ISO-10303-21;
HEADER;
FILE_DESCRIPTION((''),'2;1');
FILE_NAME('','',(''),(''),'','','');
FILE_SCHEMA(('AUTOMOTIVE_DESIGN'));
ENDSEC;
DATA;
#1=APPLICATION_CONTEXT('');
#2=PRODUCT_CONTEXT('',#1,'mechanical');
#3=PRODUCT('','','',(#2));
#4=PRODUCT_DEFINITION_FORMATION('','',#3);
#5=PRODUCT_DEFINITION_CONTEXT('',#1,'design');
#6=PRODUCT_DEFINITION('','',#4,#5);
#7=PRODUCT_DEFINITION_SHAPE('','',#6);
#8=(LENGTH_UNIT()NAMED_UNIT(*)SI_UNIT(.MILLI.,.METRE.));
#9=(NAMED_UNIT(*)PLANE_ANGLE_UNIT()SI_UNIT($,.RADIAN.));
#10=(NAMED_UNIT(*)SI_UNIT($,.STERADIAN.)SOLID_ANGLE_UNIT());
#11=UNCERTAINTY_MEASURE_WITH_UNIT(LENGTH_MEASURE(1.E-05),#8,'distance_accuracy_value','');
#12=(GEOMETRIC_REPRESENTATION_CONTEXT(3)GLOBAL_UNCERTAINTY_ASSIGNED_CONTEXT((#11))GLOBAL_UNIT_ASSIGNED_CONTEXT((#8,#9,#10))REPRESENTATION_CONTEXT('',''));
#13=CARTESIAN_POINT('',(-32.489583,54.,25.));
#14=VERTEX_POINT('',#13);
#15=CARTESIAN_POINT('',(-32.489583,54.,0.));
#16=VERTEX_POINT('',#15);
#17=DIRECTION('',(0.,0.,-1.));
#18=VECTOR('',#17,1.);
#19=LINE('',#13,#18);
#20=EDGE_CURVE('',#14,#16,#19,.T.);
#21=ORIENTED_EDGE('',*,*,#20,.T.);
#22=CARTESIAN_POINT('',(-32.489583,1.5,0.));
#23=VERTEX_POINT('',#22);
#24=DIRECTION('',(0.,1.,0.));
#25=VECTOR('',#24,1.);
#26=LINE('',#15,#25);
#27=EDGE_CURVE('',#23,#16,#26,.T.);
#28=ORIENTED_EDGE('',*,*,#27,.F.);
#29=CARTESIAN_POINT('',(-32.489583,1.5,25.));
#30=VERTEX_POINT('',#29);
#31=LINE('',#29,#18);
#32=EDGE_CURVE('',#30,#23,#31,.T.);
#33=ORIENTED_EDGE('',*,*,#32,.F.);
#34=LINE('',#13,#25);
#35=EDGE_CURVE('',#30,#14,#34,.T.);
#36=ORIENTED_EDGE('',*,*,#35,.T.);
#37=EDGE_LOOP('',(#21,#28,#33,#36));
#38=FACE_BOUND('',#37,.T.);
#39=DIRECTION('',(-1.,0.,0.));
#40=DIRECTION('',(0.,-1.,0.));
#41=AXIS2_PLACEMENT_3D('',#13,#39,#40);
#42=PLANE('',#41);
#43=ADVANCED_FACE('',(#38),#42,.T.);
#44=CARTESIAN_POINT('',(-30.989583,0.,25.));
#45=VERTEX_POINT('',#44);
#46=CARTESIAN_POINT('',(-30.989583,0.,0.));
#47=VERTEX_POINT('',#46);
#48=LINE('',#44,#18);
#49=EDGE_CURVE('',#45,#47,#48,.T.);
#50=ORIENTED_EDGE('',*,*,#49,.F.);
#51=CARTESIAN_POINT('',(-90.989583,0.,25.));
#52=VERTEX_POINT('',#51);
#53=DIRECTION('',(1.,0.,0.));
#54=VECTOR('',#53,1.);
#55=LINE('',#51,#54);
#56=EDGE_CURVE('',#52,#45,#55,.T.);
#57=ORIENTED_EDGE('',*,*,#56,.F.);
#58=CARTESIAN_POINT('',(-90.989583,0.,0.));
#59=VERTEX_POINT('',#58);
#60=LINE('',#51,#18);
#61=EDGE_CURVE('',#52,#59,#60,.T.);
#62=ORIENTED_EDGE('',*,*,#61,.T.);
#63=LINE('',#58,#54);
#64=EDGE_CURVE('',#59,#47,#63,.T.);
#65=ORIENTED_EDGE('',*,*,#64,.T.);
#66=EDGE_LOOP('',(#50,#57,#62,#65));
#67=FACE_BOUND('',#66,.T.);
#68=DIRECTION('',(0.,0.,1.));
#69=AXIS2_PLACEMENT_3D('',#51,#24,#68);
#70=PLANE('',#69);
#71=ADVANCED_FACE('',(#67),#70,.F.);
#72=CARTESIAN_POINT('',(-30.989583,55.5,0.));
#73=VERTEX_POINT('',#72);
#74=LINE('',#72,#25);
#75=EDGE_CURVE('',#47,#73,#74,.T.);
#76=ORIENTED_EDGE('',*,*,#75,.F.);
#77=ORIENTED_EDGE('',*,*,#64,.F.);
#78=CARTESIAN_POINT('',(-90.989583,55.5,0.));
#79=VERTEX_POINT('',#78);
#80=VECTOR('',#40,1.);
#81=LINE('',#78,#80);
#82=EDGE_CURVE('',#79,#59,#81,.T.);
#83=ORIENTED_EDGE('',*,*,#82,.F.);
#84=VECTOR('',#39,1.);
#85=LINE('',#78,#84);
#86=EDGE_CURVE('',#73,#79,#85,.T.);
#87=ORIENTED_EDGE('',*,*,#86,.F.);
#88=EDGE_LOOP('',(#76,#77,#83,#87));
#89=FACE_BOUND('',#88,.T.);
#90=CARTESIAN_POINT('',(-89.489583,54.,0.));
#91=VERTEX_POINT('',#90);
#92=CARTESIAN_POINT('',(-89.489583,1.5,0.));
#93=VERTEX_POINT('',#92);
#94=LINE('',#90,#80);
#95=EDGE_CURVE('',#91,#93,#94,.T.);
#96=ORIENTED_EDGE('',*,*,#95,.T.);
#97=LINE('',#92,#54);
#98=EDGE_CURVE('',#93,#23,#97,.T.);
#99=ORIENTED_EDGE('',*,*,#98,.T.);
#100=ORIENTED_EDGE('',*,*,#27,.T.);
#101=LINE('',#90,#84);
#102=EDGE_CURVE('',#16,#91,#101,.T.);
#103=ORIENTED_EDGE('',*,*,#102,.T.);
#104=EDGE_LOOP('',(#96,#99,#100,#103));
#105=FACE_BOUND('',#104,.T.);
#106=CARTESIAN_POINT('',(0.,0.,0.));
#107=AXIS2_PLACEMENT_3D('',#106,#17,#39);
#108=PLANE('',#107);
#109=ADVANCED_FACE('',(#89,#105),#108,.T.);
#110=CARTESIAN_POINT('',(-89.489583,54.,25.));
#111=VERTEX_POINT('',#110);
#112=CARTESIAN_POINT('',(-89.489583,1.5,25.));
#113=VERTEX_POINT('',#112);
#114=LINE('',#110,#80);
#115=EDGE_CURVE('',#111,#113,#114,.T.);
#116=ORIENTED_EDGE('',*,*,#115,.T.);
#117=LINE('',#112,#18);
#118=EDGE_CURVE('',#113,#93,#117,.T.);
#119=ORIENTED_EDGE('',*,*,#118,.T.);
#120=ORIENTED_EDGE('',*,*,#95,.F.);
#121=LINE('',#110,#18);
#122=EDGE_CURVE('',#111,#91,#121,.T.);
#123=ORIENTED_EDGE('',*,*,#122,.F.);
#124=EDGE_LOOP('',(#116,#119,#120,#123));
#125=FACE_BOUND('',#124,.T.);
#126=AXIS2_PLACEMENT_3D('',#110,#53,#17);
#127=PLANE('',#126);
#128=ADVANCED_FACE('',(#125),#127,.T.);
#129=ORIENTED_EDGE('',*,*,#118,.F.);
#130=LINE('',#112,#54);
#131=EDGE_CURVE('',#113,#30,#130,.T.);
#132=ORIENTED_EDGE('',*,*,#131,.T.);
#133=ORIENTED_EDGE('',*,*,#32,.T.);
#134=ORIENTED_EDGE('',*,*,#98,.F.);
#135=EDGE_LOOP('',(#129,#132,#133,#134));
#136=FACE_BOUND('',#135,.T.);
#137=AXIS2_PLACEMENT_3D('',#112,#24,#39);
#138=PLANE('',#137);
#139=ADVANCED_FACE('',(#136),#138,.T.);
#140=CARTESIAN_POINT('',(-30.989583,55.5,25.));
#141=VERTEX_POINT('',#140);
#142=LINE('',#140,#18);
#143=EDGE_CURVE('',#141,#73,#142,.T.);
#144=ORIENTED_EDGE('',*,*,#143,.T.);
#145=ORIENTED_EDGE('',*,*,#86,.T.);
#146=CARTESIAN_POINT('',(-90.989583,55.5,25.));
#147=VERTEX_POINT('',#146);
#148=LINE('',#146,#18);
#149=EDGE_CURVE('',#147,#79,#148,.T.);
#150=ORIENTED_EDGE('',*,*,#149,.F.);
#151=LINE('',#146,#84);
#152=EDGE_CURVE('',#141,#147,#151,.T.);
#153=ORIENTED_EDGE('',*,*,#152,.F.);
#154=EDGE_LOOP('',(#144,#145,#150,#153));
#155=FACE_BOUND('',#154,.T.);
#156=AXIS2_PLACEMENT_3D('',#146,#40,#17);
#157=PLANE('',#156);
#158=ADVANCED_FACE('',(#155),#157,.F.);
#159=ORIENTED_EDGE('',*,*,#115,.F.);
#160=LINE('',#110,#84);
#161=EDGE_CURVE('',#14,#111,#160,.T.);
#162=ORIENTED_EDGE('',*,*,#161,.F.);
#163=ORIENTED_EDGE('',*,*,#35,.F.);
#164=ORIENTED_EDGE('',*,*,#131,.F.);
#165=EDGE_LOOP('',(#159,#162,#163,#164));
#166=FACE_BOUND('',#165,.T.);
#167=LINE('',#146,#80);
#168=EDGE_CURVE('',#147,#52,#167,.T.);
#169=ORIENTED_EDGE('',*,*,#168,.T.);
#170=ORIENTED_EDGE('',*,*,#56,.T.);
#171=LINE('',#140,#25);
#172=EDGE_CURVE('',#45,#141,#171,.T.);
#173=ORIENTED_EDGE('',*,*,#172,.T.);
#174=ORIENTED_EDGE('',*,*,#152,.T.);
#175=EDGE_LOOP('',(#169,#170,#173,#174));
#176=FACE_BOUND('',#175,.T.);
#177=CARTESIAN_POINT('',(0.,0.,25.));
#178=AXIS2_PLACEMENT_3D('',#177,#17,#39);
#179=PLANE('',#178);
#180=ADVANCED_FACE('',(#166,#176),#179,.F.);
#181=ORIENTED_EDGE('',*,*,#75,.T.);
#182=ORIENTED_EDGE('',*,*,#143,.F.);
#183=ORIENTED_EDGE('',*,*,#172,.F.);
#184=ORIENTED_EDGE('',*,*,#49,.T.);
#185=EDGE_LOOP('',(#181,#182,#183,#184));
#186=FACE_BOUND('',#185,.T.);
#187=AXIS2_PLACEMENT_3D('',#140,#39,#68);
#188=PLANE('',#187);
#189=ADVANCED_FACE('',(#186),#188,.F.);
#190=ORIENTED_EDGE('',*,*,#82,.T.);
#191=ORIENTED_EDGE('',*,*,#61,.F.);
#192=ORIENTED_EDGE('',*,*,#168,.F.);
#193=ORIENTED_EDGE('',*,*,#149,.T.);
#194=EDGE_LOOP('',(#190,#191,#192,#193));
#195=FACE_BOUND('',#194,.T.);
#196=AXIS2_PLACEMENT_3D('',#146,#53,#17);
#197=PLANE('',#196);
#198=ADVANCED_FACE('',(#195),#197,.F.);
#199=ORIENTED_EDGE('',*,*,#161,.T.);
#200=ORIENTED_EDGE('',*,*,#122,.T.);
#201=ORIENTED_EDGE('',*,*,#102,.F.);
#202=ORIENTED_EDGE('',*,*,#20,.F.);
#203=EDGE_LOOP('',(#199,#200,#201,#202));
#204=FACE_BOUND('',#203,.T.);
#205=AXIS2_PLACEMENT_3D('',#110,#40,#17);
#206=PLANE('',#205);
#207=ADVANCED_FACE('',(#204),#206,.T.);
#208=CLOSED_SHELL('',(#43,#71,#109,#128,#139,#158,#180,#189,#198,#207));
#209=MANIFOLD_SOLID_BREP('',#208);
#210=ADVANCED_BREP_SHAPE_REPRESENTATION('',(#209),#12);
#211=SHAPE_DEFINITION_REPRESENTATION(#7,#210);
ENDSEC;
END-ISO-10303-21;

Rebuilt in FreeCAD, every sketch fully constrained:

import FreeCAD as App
import Part
import Sketcher

doc = App.newDocument("Part")
body = doc.addObject("PartDesign::Body", "Body")

# Sketch on XY plane
sketch1 = doc.addObject("Sketcher::SketchObject", "Sketch")
body.addObject(sketch1)
sketch1.AttachmentSupport = (doc.XY_Plane, [""])
sketch1.MapMode = "FlatFace"
sketch1.addGeometry(Part.LineSegment(App.Vector(-91, 56, 0), App.Vector(-91, 0, 0)), False)
sketch1.addGeometry(Part.LineSegment(App.Vector(-91, 0, 0), App.Vector(-31, 0, 0)), False)
sketch1.addGeometry(Part.LineSegment(App.Vector(-31, 0, 0), App.Vector(-31, 56, 0)), False)
sketch1.addGeometry(Part.LineSegment(App.Vector(-31, 56, 0), App.Vector(-91, 56, 0)), False)
sketch1.addGeometry(Part.LineSegment(App.Vector(-32, 2, 0), App.Vector(-89, 2, 0)), False)
sketch1.addGeometry(Part.LineSegment(App.Vector(-89, 2, 0), App.Vector(-89, 54, 0)), False)
sketch1.addGeometry(Part.LineSegment(App.Vector(-89, 54, 0), App.Vector(-32, 54, 0)), False)
sketch1.addGeometry(Part.LineSegment(App.Vector(-32, 54, 0), App.Vector(-32, 2, 0)), False)
sketch1.addConstraint(Sketcher.Constraint("Coincident", 0, 2, 1, 1))
sketch1.addConstraint(Sketcher.Constraint("Coincident", 1, 2, 2, 1))
sketch1.addConstraint(Sketcher.Constraint("Coincident", 2, 2, 3, 1))
sketch1.addConstraint(Sketcher.Constraint("Coincident", 3, 2, 0, 1))
sketch1.addConstraint(Sketcher.Constraint("Coincident", 4, 2, 5, 1))
sketch1.addConstraint(Sketcher.Constraint("Coincident", 5, 2, 6, 1))
sketch1.addConstraint(Sketcher.Constraint("Coincident", 6, 2, 7, 1))
sketch1.addConstraint(Sketcher.Constraint("Coincident", 7, 2, 4, 1))
sketch1.addConstraint(Sketcher.Constraint("Vertical", 0))
sketch1.addConstraint(Sketcher.Constraint("Horizontal", 1))
sketch1.addConstraint(Sketcher.Constraint("Vertical", 2))
sketch1.addConstraint(Sketcher.Constraint("Horizontal", 3))
sketch1.addConstraint(Sketcher.Constraint("Horizontal", 4))
sketch1.addConstraint(Sketcher.Constraint("Vertical", 5))
sketch1.addConstraint(Sketcher.Constraint("Horizontal", 6))
sketch1.addConstraint(Sketcher.Constraint("Vertical", 7))
sketch1.addConstraint(Sketcher.Constraint("PointOnObject", 0, 2, -1))
sketch1.addConstraint(Sketcher.Constraint("DistanceX", 1, 1, 1, 2, 60.0))
sketch1.addConstraint(Sketcher.Constraint("DistanceX", 4, 2, 4, 1, 57.0))
sketch1.addConstraint(Sketcher.Constraint("DistanceY", 0, 2, 0, 1, 55.5))
sketch1.addConstraint(Sketcher.Constraint("DistanceY", 5, 1, 5, 2, 52.5))
sketch1.addConstraint(Sketcher.Constraint("DistanceY", -1, 1, 5, 2, 54.0))
sketch1.addConstraint(Sketcher.Constraint("DistanceX", 0, 2, 4, 2, 1.5))
sketch1.addConstraint(Sketcher.Constraint("DistanceX", 0, 2, -1, 1, 90.989583))
pad1 = doc.addObject("PartDesign::Pad", "Pad")
body.addObject(pad1)
pad1.Profile = sketch1
pad1.Length = 25

doc.recompute()
